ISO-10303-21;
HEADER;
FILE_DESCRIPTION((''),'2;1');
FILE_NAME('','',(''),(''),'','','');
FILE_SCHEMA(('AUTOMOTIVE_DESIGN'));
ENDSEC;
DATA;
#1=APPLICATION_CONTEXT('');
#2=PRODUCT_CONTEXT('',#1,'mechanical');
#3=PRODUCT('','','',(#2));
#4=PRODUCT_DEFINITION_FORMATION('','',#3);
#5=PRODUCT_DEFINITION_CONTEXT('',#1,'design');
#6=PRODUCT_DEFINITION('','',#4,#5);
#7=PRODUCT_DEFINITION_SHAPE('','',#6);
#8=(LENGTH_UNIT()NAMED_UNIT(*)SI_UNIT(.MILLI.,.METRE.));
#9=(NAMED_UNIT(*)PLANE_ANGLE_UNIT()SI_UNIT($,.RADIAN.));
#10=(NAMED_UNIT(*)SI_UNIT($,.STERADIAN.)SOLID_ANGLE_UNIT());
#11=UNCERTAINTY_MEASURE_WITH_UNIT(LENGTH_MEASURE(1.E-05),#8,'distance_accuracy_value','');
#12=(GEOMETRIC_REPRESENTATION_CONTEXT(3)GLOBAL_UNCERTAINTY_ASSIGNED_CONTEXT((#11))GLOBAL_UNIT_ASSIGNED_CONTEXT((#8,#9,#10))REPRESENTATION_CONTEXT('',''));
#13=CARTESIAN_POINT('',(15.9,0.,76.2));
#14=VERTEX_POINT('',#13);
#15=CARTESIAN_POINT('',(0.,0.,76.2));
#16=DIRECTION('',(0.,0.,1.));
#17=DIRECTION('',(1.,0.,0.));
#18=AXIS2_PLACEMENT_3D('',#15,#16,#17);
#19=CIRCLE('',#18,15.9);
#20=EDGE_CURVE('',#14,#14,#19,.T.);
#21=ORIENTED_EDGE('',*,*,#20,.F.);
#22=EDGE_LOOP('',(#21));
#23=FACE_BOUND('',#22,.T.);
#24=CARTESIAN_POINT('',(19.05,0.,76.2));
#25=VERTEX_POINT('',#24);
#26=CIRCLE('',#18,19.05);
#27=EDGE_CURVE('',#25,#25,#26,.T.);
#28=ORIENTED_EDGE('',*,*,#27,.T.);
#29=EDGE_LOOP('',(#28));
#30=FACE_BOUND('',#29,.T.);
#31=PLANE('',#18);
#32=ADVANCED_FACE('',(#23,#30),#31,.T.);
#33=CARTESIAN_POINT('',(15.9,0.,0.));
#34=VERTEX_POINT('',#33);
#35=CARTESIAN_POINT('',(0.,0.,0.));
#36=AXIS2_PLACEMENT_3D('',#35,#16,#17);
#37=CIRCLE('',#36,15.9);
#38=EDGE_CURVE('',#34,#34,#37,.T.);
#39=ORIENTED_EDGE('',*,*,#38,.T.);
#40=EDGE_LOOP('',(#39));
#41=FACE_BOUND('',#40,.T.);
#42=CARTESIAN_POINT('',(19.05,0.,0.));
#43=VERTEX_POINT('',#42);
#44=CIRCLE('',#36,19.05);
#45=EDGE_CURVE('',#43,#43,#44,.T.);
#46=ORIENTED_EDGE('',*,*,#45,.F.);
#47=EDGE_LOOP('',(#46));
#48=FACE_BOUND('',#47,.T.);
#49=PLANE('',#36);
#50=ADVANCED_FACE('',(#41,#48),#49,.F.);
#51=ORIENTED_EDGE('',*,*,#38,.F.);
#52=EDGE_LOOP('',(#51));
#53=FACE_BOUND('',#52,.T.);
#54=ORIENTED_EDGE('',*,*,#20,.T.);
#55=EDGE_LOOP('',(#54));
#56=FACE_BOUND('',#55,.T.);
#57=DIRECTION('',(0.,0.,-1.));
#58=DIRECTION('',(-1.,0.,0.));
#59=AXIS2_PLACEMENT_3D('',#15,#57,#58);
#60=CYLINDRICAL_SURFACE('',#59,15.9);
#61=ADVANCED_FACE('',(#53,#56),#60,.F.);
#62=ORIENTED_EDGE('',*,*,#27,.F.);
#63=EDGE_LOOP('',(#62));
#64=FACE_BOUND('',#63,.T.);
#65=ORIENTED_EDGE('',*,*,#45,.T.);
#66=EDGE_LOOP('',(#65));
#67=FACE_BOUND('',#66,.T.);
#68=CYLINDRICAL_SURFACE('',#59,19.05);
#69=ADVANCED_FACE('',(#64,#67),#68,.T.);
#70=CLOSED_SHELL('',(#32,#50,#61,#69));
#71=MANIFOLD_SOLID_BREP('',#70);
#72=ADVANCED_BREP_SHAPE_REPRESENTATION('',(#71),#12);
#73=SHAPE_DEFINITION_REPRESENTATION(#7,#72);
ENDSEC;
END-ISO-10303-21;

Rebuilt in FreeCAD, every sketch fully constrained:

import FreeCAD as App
import Part
import Sketcher
Q = App.Units.Quantity

doc = App.newDocument("Part")
params = doc.addObject("Spreadsheet::Sheet", "Params")
for row, (alias, value) in enumerate([
    ("sketch1_diameter", "1.5 in"),
    ("pad1_length", "3 in"),
], start=1):
    params.set(f"A{row}", alias)
    params.set(f"B{row}", "=" + value)
    params.setAlias(f"B{row}", alias)

body = doc.addObject("PartDesign::Body", "Body")

# Sketch on XY plane
sketch1 = body.newObject("Sketcher::SketchObject", "Sketch")
sketch1.AttachmentSupport = (doc.getObject("XY_Plane"), [""])
sketch1.MapMode = "FlatFace"
sketch1.addGeometry(Part.Circle(App.Vector(0, 0, 0), App.Vector(0, 0, 1), 19), False)
sketch1.addGeometry(Part.Circle(App.Vector(0, 0, 0), App.Vector(0, 0, 1), 16), False)
sketch1.addConstraint(Sketcher.Constraint("Coincident", 0, 3, -1, 1))
sketch1.addConstraint(Sketcher.Constraint("Coincident", 1, 3, -1, 1))
sketch1.addConstraint(Sketcher.Constraint("Diameter", 0, Q("1.5 in")))
sketch1.addConstraint(Sketcher.Constraint("Diameter", 1, 31.8))
sketch1.setExpression("Constraints[2]", "Params.sketch1_diameter")
pad1 = body.newObject("PartDesign::Pad", "Pad")
pad1.Profile = sketch1
pad1.setExpression("Length", "Params.pad1_length")

doc.recompute()
